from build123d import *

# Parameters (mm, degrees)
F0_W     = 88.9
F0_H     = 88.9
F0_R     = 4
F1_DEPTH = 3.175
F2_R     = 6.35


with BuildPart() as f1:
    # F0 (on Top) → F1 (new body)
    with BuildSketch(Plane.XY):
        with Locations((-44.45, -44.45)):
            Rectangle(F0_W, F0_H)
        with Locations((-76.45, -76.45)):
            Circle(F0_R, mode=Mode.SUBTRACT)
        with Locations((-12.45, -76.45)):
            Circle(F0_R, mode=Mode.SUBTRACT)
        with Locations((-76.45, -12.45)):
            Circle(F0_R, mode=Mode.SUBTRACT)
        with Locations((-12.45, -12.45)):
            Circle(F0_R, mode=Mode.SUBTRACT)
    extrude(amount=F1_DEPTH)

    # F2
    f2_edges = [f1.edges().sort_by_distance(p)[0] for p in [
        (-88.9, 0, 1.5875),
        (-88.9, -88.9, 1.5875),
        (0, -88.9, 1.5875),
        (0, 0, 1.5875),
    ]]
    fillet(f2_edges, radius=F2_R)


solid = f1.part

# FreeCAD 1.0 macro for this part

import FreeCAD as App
import Part
import Sketcher
Q = App.Units.Quantity


def edges_at(feature, points):
    """Names of the edges that pass closest to the given points."""
    edges = feature.Shape.Edges
    near = lambda p: min(range(len(edges)), key=lambda i: edges[i].distToShape(Part.Vertex(*p))[0])
    return sorted({f"Edge{near(p) + 1}" for p in points})


def add_polygon(sketch, points):
    """Adds a closed chain of lines whose ends are joined by coincident constraints."""
    first, n = sketch.GeometryCount, len(points)
    for a, b in zip(points, points[1:] + points[:1]):
        sketch.addGeometry(Part.LineSegment(App.Vector(*a, 0), App.Vector(*b, 0)), False)
    for i in range(n):
        sketch.addConstraint(Sketcher.Constraint("Coincident", first + i, 2, first + (i + 1) % n, 1))

doc = App.newDocument("Part")
params = doc.addObject("Spreadsheet::Sheet", "Params")
for row, (alias, value) in enumerate([
    ("sketch1_width", "3.5 in"),
    ("pad1_length", "0.125 in"),
    ("fillet_radius", "0.25 in"),
], start=1):
    params.set(f"A{row}", alias)
    params.set(f"B{row}", "=" + value)
    params.setAlias(f"B{row}", alias)

body = doc.addObject("PartDesign::Body", "Body")

# Sketch on XY plane
sketch1 = body.newObject("Sketcher::SketchObject", "Sketch")
sketch1.AttachmentSupport = (doc.getObject("XY_Plane"), [""])
sketch1.MapMode = "FlatFace"
add_polygon(sketch1, [(-88.9, 0), (-88.9, -88.9), (0, -88.9), (0, 0)])  # lines 0-3
sketch1.addGeometry(Part.Circle(App.Vector(-76.5, -76.5, 0), App.Vector(0, 0, 1), 4), False)  # 4
sketch1.addGeometry(Part.Circle(App.Vector(-12.4, -76.5, 0), App.Vector(0, 0, 1), 4), False)  # 5
sketch1.addGeometry(Part.Circle(App.Vector(-76.5, -12.4, 0), App.Vector(0, 0, 1), 4), False)  # 6
sketch1.addGeometry(Part.Circle(App.Vector(-12.4, -12.4, 0), App.Vector(0, 0, 1), 4), False)  # 7
sketch1.addConstraint(Sketcher.Constraint("Vertical", 0))
sketch1.addConstraint(Sketcher.Constraint("Horizontal", 1))
sketch1.addConstraint(Sketcher.Constraint("Vertical", 2))
sketch1.addConstraint(Sketcher.Constraint("Horizontal", 3))
sketch1.addConstraint(Sketcher.Constraint("Coincident", 2, 2, -1, 1))
sketch1.addConstraint(Sketcher.Constraint("Equal", 4, 5))
sketch1.addConstraint(Sketcher.Constraint("Equal", 5, 6))
sketch1.addConstraint(Sketcher.Constraint("Equal", 6, 7))
sketch1.addConstraint(Sketcher.Constraint("Horizontal", 4, 3, 5, 3))
sketch1.addConstraint(Sketcher.Constraint("Horizontal", 6, 3, 7, 3))
sketch1.addConstraint(Sketcher.Constraint("Vertical", 4, 3, 6, 3))
sketch1.addConstraint(Sketcher.Constraint("Vertical", 5, 3, 7, 3))
sketch1.addConstraint(Sketcher.Constraint("Equal", 3, 0))
sketch1.addConstraint(Sketcher.Constraint("DistanceX", 1, 1, 1, 2, Q("3.5 in")))
sketch1.addConstraint(Sketcher.Constraint("Diameter", 4, 8.0))
sketch1.addConstraint(Sketcher.Constraint("DistanceX", 4, 3, -1, 1, 76.45))
sketch1.addConstraint(Sketcher.Constraint("DistanceY", 4, 3, -1, 1, 76.45))
sketch1.addConstraint(Sketcher.Constraint("DistanceX", 5, 3, -1, 1, 12.45))
sketch1.addConstraint(Sketcher.Constraint("DistanceY", 6, 3, -1, 1, 12.45))
sketch1.setExpression("Constraints[17]", "Params.sketch1_width")
pad1 = body.newObject("PartDesign::Pad", "Pad")
pad1.Profile = sketch1
pad1.setExpression("Length", "Params.pad1_length")
doc.recompute()

fillet = body.newObject("PartDesign::Fillet", "Fillet")
fillet.Base = (pad1, edges_at(pad1, [
    (-88.9, 0, 1.587),
    (-88.9, -88.9, 1.587),
    (0, -88.9, 1.587),
    (0, 0, 1.587),
]))
fillet.setExpression("Radius", "Params.fillet_radius")

doc.recompute()
